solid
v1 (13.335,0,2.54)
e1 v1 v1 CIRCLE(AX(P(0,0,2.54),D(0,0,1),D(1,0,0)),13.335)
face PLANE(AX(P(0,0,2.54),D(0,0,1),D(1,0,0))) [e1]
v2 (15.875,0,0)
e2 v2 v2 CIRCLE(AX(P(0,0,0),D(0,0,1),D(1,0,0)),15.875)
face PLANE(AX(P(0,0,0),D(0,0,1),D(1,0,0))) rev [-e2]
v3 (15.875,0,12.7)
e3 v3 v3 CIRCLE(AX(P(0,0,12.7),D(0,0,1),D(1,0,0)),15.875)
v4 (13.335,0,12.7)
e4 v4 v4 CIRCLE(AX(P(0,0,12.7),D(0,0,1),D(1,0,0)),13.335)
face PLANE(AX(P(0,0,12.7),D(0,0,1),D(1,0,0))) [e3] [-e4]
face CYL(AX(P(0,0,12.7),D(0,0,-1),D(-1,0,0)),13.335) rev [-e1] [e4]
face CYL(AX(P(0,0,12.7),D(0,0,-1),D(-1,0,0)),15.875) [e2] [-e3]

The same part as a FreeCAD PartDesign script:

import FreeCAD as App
import Part
import Sketcher

V = App.Vector
Q = App.Units.Quantity


def faces_at(feature, points):
    """Names of the faces that lie closest to the given points."""
    faces = feature.Shape.Faces
    near = lambda p: min(range(len(faces)), key=lambda i: faces[i].distToShape(Part.Vertex(*p))[0])
    return sorted({f"Face{near(p) + 1}" for p in points})

doc = App.newDocument("Part")
body = doc.addObject("PartDesign::Body", "Body")

# Sketch on XY plane
sketch1 = doc.addObject("Sketcher::SketchObject", "Sketch")
body.addObject(sketch1)
sketch1.AttachmentSupport = (doc.XY_Plane, [""])
sketch1.MapMode = "FlatFace"
sketch1.addGeometry(Part.Circle(V(0, 0, 0), V(0, 0, 1), 16), False)
sketch1.addConstraint(Sketcher.Constraint("Coincident", 0, 3, -1, 1))
sketch1.addConstraint(Sketcher.Constraint("Diameter", 0, Q("1.25 in")))
pad1 = doc.addObject("PartDesign::Pad", "Pad")
body.addObject(pad1)
pad1.Profile = sketch1
pad1.Length = Q("0.5 in")
doc.recompute()

thickness = doc.addObject("PartDesign::Thickness", "Thickness")
body.addObject(thickness)
thickness.Base = (pad1, faces_at(pad1, [(0, 0, 12.7)]))
thickness.Value = Q("0.1 in")
thickness.Reversed = True
thickness.Join = "Intersection"

doc.recompute()
